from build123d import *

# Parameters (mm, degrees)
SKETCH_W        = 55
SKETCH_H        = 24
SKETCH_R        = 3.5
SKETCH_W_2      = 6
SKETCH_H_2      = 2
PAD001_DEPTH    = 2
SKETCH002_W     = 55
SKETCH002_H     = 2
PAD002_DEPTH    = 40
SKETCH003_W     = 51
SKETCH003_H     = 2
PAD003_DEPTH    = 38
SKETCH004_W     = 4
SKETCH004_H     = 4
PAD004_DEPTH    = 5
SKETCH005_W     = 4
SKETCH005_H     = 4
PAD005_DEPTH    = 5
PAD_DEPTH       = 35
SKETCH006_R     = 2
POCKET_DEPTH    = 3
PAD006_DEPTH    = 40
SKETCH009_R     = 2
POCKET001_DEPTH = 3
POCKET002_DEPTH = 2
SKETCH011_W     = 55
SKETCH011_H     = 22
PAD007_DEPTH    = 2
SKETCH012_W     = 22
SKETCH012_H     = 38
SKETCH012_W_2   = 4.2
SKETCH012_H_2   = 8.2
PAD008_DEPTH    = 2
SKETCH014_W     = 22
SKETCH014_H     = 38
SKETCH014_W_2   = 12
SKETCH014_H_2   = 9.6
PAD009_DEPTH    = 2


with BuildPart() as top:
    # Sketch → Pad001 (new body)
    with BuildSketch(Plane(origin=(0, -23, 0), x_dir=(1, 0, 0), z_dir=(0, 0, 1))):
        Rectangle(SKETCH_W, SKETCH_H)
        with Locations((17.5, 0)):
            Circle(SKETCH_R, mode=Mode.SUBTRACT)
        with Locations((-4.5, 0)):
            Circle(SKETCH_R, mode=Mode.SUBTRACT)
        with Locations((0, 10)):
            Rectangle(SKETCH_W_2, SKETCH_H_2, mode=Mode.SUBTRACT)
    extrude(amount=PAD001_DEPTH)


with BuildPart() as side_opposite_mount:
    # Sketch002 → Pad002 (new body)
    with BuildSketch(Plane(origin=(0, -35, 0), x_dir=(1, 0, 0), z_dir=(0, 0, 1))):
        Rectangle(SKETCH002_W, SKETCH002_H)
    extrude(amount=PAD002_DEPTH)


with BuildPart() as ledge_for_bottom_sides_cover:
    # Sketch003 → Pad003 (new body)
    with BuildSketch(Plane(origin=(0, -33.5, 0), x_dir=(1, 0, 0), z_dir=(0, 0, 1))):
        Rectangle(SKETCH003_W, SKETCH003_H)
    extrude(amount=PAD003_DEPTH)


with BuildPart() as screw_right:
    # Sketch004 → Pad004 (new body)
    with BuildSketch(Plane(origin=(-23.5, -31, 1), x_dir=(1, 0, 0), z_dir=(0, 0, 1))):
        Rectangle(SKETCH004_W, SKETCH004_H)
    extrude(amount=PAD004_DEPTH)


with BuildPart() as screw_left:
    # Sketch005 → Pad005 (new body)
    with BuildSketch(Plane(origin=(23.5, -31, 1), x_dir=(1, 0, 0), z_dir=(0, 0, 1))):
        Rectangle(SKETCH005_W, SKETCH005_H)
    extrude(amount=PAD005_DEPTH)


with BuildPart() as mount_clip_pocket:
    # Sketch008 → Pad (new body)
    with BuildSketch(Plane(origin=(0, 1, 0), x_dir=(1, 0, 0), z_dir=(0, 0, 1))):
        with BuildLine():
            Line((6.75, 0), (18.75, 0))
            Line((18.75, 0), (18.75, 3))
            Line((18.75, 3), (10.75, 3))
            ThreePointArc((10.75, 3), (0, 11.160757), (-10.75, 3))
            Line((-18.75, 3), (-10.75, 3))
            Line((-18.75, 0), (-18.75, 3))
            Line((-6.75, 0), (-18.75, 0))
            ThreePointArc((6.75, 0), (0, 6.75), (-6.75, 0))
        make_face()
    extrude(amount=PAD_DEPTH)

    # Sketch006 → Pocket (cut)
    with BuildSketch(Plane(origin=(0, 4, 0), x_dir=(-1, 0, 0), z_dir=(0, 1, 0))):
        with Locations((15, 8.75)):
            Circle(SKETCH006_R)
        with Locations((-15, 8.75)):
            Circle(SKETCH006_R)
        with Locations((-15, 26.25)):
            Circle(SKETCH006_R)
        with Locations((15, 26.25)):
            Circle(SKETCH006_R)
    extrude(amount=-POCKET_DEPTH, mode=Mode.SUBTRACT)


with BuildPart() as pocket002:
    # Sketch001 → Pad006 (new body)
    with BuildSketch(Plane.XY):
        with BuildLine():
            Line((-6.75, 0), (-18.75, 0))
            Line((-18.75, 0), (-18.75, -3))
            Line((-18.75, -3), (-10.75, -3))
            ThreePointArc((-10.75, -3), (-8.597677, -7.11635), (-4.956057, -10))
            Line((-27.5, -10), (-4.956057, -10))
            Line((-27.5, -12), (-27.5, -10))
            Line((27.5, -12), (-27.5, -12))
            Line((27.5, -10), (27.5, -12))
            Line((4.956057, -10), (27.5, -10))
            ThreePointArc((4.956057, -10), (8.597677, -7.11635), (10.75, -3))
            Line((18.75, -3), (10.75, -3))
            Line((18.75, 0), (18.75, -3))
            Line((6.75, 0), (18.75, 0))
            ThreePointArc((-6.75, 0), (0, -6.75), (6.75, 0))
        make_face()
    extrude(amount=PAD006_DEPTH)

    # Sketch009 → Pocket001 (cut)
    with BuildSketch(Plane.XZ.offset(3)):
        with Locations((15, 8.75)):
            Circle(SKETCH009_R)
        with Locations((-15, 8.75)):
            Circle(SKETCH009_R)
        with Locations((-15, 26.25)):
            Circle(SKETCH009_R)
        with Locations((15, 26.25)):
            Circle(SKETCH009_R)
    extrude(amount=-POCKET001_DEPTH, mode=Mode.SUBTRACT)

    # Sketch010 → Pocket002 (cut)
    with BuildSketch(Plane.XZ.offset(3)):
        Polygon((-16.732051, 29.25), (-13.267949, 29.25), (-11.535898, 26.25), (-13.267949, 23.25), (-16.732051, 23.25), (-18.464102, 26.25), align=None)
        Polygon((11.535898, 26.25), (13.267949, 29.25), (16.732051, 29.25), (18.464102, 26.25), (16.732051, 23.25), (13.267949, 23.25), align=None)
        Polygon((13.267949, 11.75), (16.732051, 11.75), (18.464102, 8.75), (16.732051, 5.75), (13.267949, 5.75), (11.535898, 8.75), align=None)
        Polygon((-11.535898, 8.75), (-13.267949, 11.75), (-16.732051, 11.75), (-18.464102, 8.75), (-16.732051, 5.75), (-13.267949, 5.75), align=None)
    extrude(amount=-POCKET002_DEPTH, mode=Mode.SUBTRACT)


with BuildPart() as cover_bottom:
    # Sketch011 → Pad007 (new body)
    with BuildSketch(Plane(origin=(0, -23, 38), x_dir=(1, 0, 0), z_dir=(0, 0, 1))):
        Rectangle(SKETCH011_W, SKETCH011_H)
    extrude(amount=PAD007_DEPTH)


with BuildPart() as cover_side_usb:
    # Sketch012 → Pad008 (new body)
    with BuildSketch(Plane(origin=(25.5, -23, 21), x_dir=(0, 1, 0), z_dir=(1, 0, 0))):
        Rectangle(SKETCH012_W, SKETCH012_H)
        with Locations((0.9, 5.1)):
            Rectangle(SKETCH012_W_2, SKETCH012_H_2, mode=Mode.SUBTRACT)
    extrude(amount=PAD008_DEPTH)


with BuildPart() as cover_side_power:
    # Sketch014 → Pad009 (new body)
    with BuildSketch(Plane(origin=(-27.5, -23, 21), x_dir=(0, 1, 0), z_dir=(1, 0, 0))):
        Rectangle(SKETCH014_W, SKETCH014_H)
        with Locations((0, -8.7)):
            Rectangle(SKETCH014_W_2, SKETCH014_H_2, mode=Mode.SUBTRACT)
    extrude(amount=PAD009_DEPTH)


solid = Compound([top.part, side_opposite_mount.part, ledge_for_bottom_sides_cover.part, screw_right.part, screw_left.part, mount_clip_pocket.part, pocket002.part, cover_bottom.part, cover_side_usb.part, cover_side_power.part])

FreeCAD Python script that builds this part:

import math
import FreeCAD as App
import Part
import Sketcher

V = App.Vector
Q = App.Units.Quantity

doc = App.newDocument("Part")
body = doc.addObject("PartDesign::Body", "Body")

# Sketch on XY plane
sketch1 = body.newObject("Sketcher::SketchObject", "Sketch")
sketch1.AttachmentSupport = (doc.getObject("XY_Plane"), [""])
sketch1.MapMode = "FlatFace"
sketch1.addGeometry(Part.LineSegment(V(-27.5, -11, 0), V(-27.5, -35, 0)), False)
sketch1.addGeometry(Part.LineSegment(V(-27.5, -35, 0), V(27.5, -35, 0)), False)
sketch1.addGeometry(Part.LineSegment(V(27.5, -35, 0), V(27.5, -11, 0)), False)
sketch1.addGeometry(Part.LineSegment(V(27.5, -11, 0), V(-27.5, -11, 0)), False)
sketch1.addGeometry(Part.Circle(V(-4.5, -23, 0), V(0, 0, 1), 3.5), False)
sketch1.addGeometry(Part.Circle(V(17.5, -23, 0), V(0, 0, 1), 3.5), False)
sketch1.addGeometry(Part.LineSegment(V(3, -14, 0), V(-3, -14, 0)), False)
sketch1.addGeometry(Part.LineSegment(V(-3, -14, 0), V(-3, -12, 0)), False)
sketch1.addGeometry(Part.LineSegment(V(-3, -12, 0), V(3, -12, 0)), False)
sketch1.addGeometry(Part.LineSegment(V(3, -12, 0), V(3, -14, 0)), False)
sketch1.addConstraint(Sketcher.Constraint("Coincident", 0, 2, 1, 1))
sketch1.addConstraint(Sketcher.Constraint("Coincident", 1, 2, 2, 1))
sketch1.addConstraint(Sketcher.Constraint("Coincident", 2, 2, 3, 1))
sketch1.addConstraint(Sketcher.Constraint("Coincident", 3, 2, 0, 1))
sketch1.addConstraint(Sketcher.Constraint("Coincident", 6, 2, 7, 1))
sketch1.addConstraint(Sketcher.Constraint("Coincident", 7, 2, 8, 1))
sketch1.addConstraint(Sketcher.Constraint("Coincident", 8, 2, 9, 1))
sketch1.addConstraint(Sketcher.Constraint("Coincident", 9, 2, 6, 1))
sketch1.addConstraint(Sketcher.Constraint("Vertical", 0))
sketch1.addConstraint(Sketcher.Constraint("Horizontal", 1))
sketch1.addConstraint(Sketcher.Constraint("Vertical", 2))
sketch1.addConstraint(Sketcher.Constraint("Horizontal", 3))
sketch1.addConstraint(Sketcher.Constraint("Horizontal", 6))
sketch1.addConstraint(Sketcher.Constraint("Vertical", 7))
sketch1.addConstraint(Sketcher.Constraint("Horizontal", 8))
sketch1.addConstraint(Sketcher.Constraint("Vertical", 9))
sketch1.addConstraint(Sketcher.Constraint("Equal", 4, 5))
sketch1.addConstraint(Sketcher.Constraint("Horizontal", 4, 3, 5, 3))
sketch1.addConstraint(Sketcher.Constraint("Diameter", 4, 7.0))
sketch1.addConstraint(Sketcher.Constraint("DistanceX", 1, 1, 1, 2, 55.0))
sketch1.addConstraint(Sketcher.Constraint("DistanceX", 6, 2, 6, 1, 6.0))
sketch1.addConstraint(Sketcher.Constraint("DistanceY", 0, 2, 0, 1, 24.0))
sketch1.addConstraint(Sketcher.Constraint("DistanceY", 7, 1, 7, 2, 2.0))
sketch1.addConstraint(Sketcher.Constraint("DistanceY", 4, 3, -1, 1, 23.0))
sketch1.addConstraint(Sketcher.Constraint("DistanceY", 0, 2, -1, 1, 35.0))
sketch1.addConstraint(Sketcher.Constraint("DistanceX", 6, 2, -1, 1, 3.0))
sketch1.addConstraint(Sketcher.Constraint("DistanceY", 6, 2, -1, 1, 14.0))
sketch1.addConstraint(Sketcher.Constraint("DistanceX", 4, 3, 5, 3, 22.0))
sketch1.addConstraint(Sketcher.Constraint("DistanceX", 0, 2, 4, 3, 23.0))
sketch1.addConstraint(Sketcher.Constraint("DistanceX", 4, 3, -1, 1, 4.5))
pad1 = body.newObject("PartDesign::Pad", "Pad")
pad1.Profile = sketch1
pad1.Length = 2
body2 = doc.addObject("PartDesign::Body", "Body001")

# Sketch on XY plane
sketch2 = body2.newObject("Sketcher::SketchObject", "Sketch001")
sketch2.AttachmentSupport = (doc.getObject("XY_Plane001"), [""])
sketch2.MapMode = "FlatFace"
sketch2.addGeometry(Part.LineSegment(V(-27.5, -34, 0), V(-27.5, -36, 0)), False)
sketch2.addGeometry(Part.LineSegment(V(-27.5, -36, 0), V(27.5, -36, 0)), False)
sketch2.addGeometry(Part.LineSegment(V(27.5, -36, 0), V(27.5, -34, 0)), False)
sketch2.addGeometry(Part.LineSegment(V(27.5, -34, 0), V(-27.5, -34, 0)), False)
sketch2.addConstraint(Sketcher.Constraint("Coincident", 0, 2, 1, 1))
sketch2.addConstraint(Sketcher.Constraint("Coincident", 1, 2, 2, 1))
sketch2.addConstraint(Sketcher.Constraint("Coincident", 2, 2, 3, 1))
sketch2.addConstraint(Sketcher.Constraint("Coincident", 3, 2, 0, 1))
sketch2.addConstraint(Sketcher.Constraint("Vertical", 0))
sketch2.addConstraint(Sketcher.Constraint("Horizontal", 1))
sketch2.addConstraint(Sketcher.Constraint("Vertical", 2))
sketch2.addConstraint(Sketcher.Constraint("Horizontal", 3))
sketch2.addConstraint(Sketcher.Constraint("DistanceX", 1, 1, 1, 2, 55.0))
sketch2.addConstraint(Sketcher.Constraint("DistanceY", 0, 2, 0, 1, 2.0))
sketch2.addConstraint(Sketcher.Constraint("DistanceY", 0, 2, -1, 1, 36.0))
sketch2.addConstraint(Sketcher.Constraint("DistanceX", 0, 2, -1, 1, 27.5))
pad2 = body2.newObject("PartDesign::Pad", "Pad001")
pad2.Profile = sketch2
pad2.Length = 40
body3 = doc.addObject("PartDesign::Body", "Body002")

# Sketch on XY plane
sketch3 = body3.newObject("Sketcher::SketchObject", "Sketch002")
sketch3.AttachmentSupport = (doc.getObject("XY_Plane002"), [""])
sketch3.MapMode = "FlatFace"
sketch3.addGeometry(Part.LineSegment(V(-25.5, -32.5, 0), V(-25.5, -34.5, 0)), False)
sketch3.addGeometry(Part.LineSegment(V(-25.5, -34.5, 0), V(25.5, -34.5, 0)), False)
sketch3.addGeometry(Part.LineSegment(V(25.5, -34.5, 0), V(25.5, -32.5, 0)), False)
sketch3.addGeometry(Part.LineSegment(V(25.5, -32.5, 0), V(-25.5, -32.5, 0)), False)
sketch3.addConstraint(Sketcher.Constraint("Coincident", 0, 2, 1, 1))
sketch3.addConstraint(Sketcher.Constraint("Coincident", 1, 2, 2, 1))
sketch3.addConstraint(Sketcher.Constraint("Coincident", 2, 2, 3, 1))
sketch3.addConstraint(Sketcher.Constraint("Coincident", 3, 2, 0, 1))
sketch3.addConstraint(Sketcher.Constraint("Vertical", 0))
sketch3.addConstraint(Sketcher.Constraint("Horizontal", 1))
sketch3.addConstraint(Sketcher.Constraint("Vertical", 2))
sketch3.addConstraint(Sketcher.Constraint("Horizontal", 3))
sketch3.addConstraint(Sketcher.Constraint("DistanceX", 1, 1, 1, 2, 51.0))
sketch3.addConstraint(Sketcher.Constraint("DistanceY", 0, 2, 0, 1, 2.0))
sketch3.addConstraint(Sketcher.Constraint("DistanceX", 0, 2, -1, 1, 25.5))
sketch3.addConstraint(Sketcher.Constraint("DistanceY", 0, 2, -1, 1, 34.5))
pad3 = body3.newObject("PartDesign::Pad", "Pad002")
pad3.Profile = sketch3
pad3.Length = 38
body4 = doc.addObject("PartDesign::Body", "Body003")

# Sketch on XY plane
sketch4 = body4.newObject("Sketcher::SketchObject", "Sketch003")
sketch4.AttachmentSupport = (doc.getObject("XY_Plane003"), [""])
sketch4.MapMode = "FlatFace"
sketch4.AttachmentOffset = App.Placement(V(0, 0, 1), App.Rotation())
sketch4.addGeometry(Part.LineSegment(V(-25.5, -29, 0), V(-25.5, -33, 0)), False)
sketch4.addGeometry(Part.LineSegment(V(-25.5, -33, 0), V(-21.5, -33, 0)), False)
sketch4.addGeometry(Part.LineSegment(V(-21.5, -33, 0), V(-21.5, -29, 0)), False)
sketch4.addGeometry(Part.LineSegment(V(-21.5, -29, 0), V(-25.5, -29, 0)), False)
sketch4.addConstraint(Sketcher.Constraint("Coincident", 0, 2, 1, 1))
sketch4.addConstraint(Sketcher.Constraint("Coincident", 1, 2, 2, 1))
sketch4.addConstraint(Sketcher.Constraint("Coincident", 2, 2, 3, 1))
sketch4.addConstraint(Sketcher.Constraint("Coincident", 3, 2, 0, 1))
sketch4.addConstraint(Sketcher.Constraint("Vertical", 0))
sketch4.addConstraint(Sketcher.Constraint("Horizontal", 1))
sketch4.addConstraint(Sketcher.Constraint("Vertical", 2))
sketch4.addConstraint(Sketcher.Constraint("Horizontal", 3))
sketch4.addConstraint(Sketcher.Constraint("Equal", 3, 0))
sketch4.addConstraint(Sketcher.Constraint("DistanceX", 1, 1, 1, 2, 4.0))
sketch4.addConstraint(Sketcher.Constraint("DistanceY", 0, 2, -1, 1, 33.0))
sketch4.addConstraint(Sketcher.Constraint("DistanceX", 0, 2, -1, 1, 25.5))
pad4 = body4.newObject("PartDesign::Pad", "Pad003")
pad4.Profile = sketch4
pad4.Length = 5
body5 = doc.addObject("PartDesign::Body", "Body004")

# Sketch on XY plane
sketch5 = body5.newObject("Sketcher::SketchObject", "Sketch004")
sketch5.AttachmentSupport = (doc.getObject("XY_Plane004"), [""])
sketch5.MapMode = "FlatFace"
sketch5.AttachmentOffset = App.Placement(V(0, 0, 1), App.Rotation())
sketch5.addGeometry(Part.LineSegment(V(21.5, -29, 0), V(21.5, -33, 0)), False)
sketch5.addGeometry(Part.LineSegment(V(21.5, -33, 0), V(25.5, -33, 0)), False)
sketch5.addGeometry(Part.LineSegment(V(25.5, -33, 0), V(25.5, -29, 0)), False)
sketch5.addGeometry(Part.LineSegment(V(25.5, -29, 0), V(21.5, -29, 0)), False)
sketch5.addConstraint(Sketcher.Constraint("Coincident", 0, 2, 1, 1))
sketch5.addConstraint(Sketcher.Constraint("Coincident", 1, 2, 2, 1))
sketch5.addConstraint(Sketcher.Constraint("Coincident", 2, 2, 3, 1))
sketch5.addConstraint(Sketcher.Constraint("Coincident", 3, 2, 0, 1))
sketch5.addConstraint(Sketcher.Constraint("Vertical", 0))
sketch5.addConstraint(Sketcher.Constraint("Horizontal", 1))
sketch5.addConstraint(Sketcher.Constraint("Vertical", 2))
sketch5.addConstraint(Sketcher.Constraint("Horizontal", 3))
sketch5.addConstraint(Sketcher.Constraint("Equal", 3, 0))
sketch5.addConstraint(Sketcher.Constraint("DistanceX", 1, 1, 1, 2, 4.0))
sketch5.addConstraint(Sketcher.Constraint("DistanceY", 0, 2, -1, 1, 33.0))
sketch5.addConstraint(Sketcher.Constraint("DistanceX", -1, 1, 0, 2, 21.5))
pad5 = body5.newObject("PartDesign::Pad", "Pad004")
pad5.Profile = sketch5
pad5.Length = 5
body6 = doc.addObject("PartDesign::Body", "Body005")

# Sketch on XY plane
sketch6 = body6.newObject("Sketcher::SketchObject", "Sketch005")
sketch6.AttachmentSupport = (doc.getObject("XY_Plane005"), [""])
sketch6.MapMode = "FlatFace"
sketch6.addGeometry(Part.LineSegment(V(6.8, 1, 0), V(18.8, 1, 0)), False)
sketch6.addGeometry(Part.LineSegment(V(18.8, 1, 0), V(18.8, 4, 0)), False)
sketch6.addGeometry(Part.LineSegment(V(18.8, 4, 0), V(10.8, 4, 0)), False)
sketch6.addGeometry(Part.ArcOfCircle(Part.Circle(V(0, 1, 0), V(0, 0, 1), 11.2), math.radians(16), math.radians(164)), False)
sketch6.addGeometry(Part.LineSegment(V(-10.8, 4, 0), V(-18.8, 4, 0)), False)
sketch6.addGeometry(Part.LineSegment(V(-18.8, 4, 0), V(-18.8, 1, 0)), False)
sketch6.addGeometry(Part.LineSegment(V(-18.8, 1, 0), V(-6.8, 1, 0)), False)
sketch6.addGeometry(Part.ArcOfCircle(Part.Circle(V(0, 1, 0), V(0, 0, 1), 6.8), math.radians(0), math.radians(180)), False)
sketch6.addConstraint(Sketcher.Constraint("Coincident", 0, 2, 1, 1))
sketch6.addConstraint(Sketcher.Constraint("Coincident", 1, 2, 2, 1))
sketch6.addConstraint(Sketcher.Constraint("Coincident", 2, 2, 3, 1))
sketch6.addConstraint(Sketcher.Constraint("Coincident", 3, 2, 4, 1))
sketch6.addConstraint(Sketcher.Constraint("Coincident", 4, 2, 5, 1))
sketch6.addConstraint(Sketcher.Constraint("Coincident", 5, 2, 6, 1))
sketch6.addConstraint(Sketcher.Constraint("Coincident", 6, 2, 7, 2))
sketch6.addConstraint(Sketcher.Constraint("Coincident", 7, 1, 0, 1))
sketch6.addConstraint(Sketcher.Constraint("Horizontal", 0))
sketch6.addConstraint(Sketcher.Constraint("Vertical", 1))
sketch6.addConstraint(Sketcher.Constraint("Horizontal", 2))
sketch6.addConstraint(Sketcher.Constraint("Horizontal", 4))
sketch6.addConstraint(Sketcher.Constraint("Vertical", 5))
sketch6.addConstraint(Sketcher.Constraint("Horizontal", 6))
sketch6.addConstraint(Sketcher.Constraint("Coincident", 7, 3, 3, 3))
sketch6.addConstraint(Sketcher.Constraint("Symmetric", 2, 2, 3, 2, -2))
sketch6.addConstraint(Sketcher.Constraint("Symmetric", 0, 2, 5, 2, -2))
sketch6.addConstraint(Sketcher.Constraint("Horizontal", 7, 3, 0, 2))
sketch6.addConstraint(Sketcher.Constraint("DistanceX", 0, 1, 0, 2, 12.0))
sketch6.addConstraint(Sketcher.Constraint("DistanceX", 2, 2, 2, 1, 8.0))
sketch6.addConstraint(Sketcher.Constraint("DistanceY", 1, 1, 1, 2, 3.0))
sketch6.addConstraint(Sketcher.Constraint("Radius", 7, 6.75))
sketch6.addConstraint(Sketcher.Constraint("DistanceY", -1, 1, 3, 3, 1.0))
pad6 = body6.newObject("PartDesign::Pad", "Pad005")
pad6.Profile = sketch6
pad6.Length = 35

# Sketch on XZ plane
sketch7 = body6.newObject("Sketcher::SketchObject", "Sketch006")
sketch7.AttachmentSupport = (doc.getObject("XZ_Plane005"), [""])
sketch7.MapMode = "FlatFace"
sketch7.AttachmentOffset = App.Placement(V(0, 0, -4), App.Rotation())
sketch7.addGeometry(Part.Circle(V(-15, 8.8, 0), V(0, 0, 1), 2), False)
sketch7.addGeometry(Part.Circle(V(15, 8.8, 0), V(0, 0, 1), 2), False)
sketch7.addGeometry(Part.Circle(V(15, 26.2, 0), V(0, 0, 1), 2), False)
sketch7.addGeometry(Part.Circle(V(-15, 26.2, 0), V(0, 0, 1), 2), False)
sketch7.addConstraint(Sketcher.Constraint("Equal", 0, 1))
sketch7.addConstraint(Sketcher.Constraint("Equal", 1, 2))
sketch7.addConstraint(Sketcher.Constraint("Equal", 2, 3))
sketch7.addConstraint(Sketcher.Constraint("Symmetric", 0, 3, 1, 3, -2))
sketch7.addConstraint(Sketcher.Constraint("Symmetric", 2, 3, 3, 3, -2))
sketch7.addConstraint(Sketcher.Constraint("Vertical", 1, 3, 2, 3))
sketch7.addConstraint(Sketcher.Constraint("Diameter", 0, 4.0))
sketch7.addConstraint(Sketcher.Constraint("DistanceX", 0, 3, -1, 1, 15.0))
sketch7.addConstraint(Sketcher.Constraint("DistanceY", 1, 3, 2, 3, 17.5))
sketch7.addConstraint(Sketcher.Constraint("DistanceY", -1, 1, 0, 3, 8.75))
pocket1 = body6.newObject("PartDesign::Pocket", "Pocket")
pocket1.Profile = sketch7
pocket1.Length = 3
pocket1.Reversed = True
body7 = doc.addObject("PartDesign::Body", "Body006")

# Sketch on XY plane
sketch8 = body7.newObject("Sketcher::SketchObject", "Sketch007")
sketch8.AttachmentSupport = (doc.getObject("XY_Plane006"), [""])
sketch8.MapMode = "FlatFace"
sketch8.addGeometry(Part.LineSegment(V(-6.8, 0, 0), V(-18.8, 0, 0)), False)
sketch8.addGeometry(Part.LineSegment(V(-18.8, 0, 0), V(-18.8, -3, 0)), False)
sketch8.addGeometry(Part.LineSegment(V(-18.8, -3, 0), V(-10.8, -3, 0)), False)
sketch8.addGeometry(Part.ArcOfCircle(Part.Circle(V(0, 0, 0), V(0, 0, 1), 11.2), math.radians(-164), math.radians(-116)), False)
sketch8.addGeometry(Part.LineSegment(V(-5, -10, 0), V(-27.5, -10, 0)), False)
sketch8.addGeometry(Part.LineSegment(V(-27.5, -10, 0), V(-27.5, -12, 0)), False)
sketch8.addGeometry(Part.LineSegment(V(-27.5, -12, 0), V(27.5, -12, 0)), False)
sketch8.addGeometry(Part.LineSegment(V(27.5, -12, 0), V(27.5, -10, 0)), False)
sketch8.addGeometry(Part.LineSegment(V(27.5, -10, 0), V(5, -10, 0)), False)
sketch8.addGeometry(Part.ArcOfCircle(Part.Circle(V(0, 0, 0), V(0, 0, 1), 11.2), math.radians(-64), math.radians(-16)), False)
sketch8.addGeometry(Part.LineSegment(V(10.8, -3, 0), V(18.8, -3, 0)), False)
sketch8.addGeometry(Part.LineSegment(V(18.8, -3, 0), V(18.8, 0, 0)), False)
sketch8.addGeometry(Part.LineSegment(V(18.8, 0, 0), V(6.8, 0, 0)), False)
sketch8.addGeometry(Part.ArcOfCircle(Part.Circle(V(0, 0, 0), V(0, 0, 1), 6.8), math.radians(180), math.radians(360)), False)
sketch8.addConstraint(Sketcher.Constraint("Coincident", 0, 2, 1, 1))
sketch8.addConstraint(Sketcher.Constraint("Coincident", 1, 2, 2, 1))
sketch8.addConstraint(Sketcher.Constraint("Coincident", 2, 2, 3, 1))
sketch8.addConstraint(Sketcher.Constraint("Coincident", 3, 2, 4, 1))
sketch8.addConstraint(Sketcher.Constraint("Coincident", 4, 2, 5, 1))
sketch8.addConstraint(Sketcher.Constraint("Coincident", 5, 2, 6, 1))
sketch8.addConstraint(Sketcher.Constraint("Coincident", 6, 2, 7, 1))
sketch8.addConstraint(Sketcher.Constraint("Coincident", 7, 2, 8, 1))
sketch8.addConstraint(Sketcher.Constraint("Coincident", 8, 2, 9, 1))
sketch8.addConstraint(Sketcher.Constraint("Coincident", 9, 2, 10, 1))
sketch8.addConstraint(Sketcher.Constraint("Coincident", 10, 2, 11, 1))
sketch8.addConstraint(Sketcher.Constraint("Coincident", 11, 2, 12, 1))
sketch8.addConstraint(Sketcher.Constraint("Coincident", 12, 2, 13, 2))
sketch8.addConstraint(Sketcher.Constraint("Coincident", 13, 1, 0, 1))
sketch8.addConstraint(Sketcher.Constraint("Horizontal", 0))
sketch8.addConstraint(Sketcher.Constraint("Vertical", 1))
sketch8.addConstraint(Sketcher.Constraint("Horizontal", 2))
sketch8.addConstraint(Sketcher.Constraint("Horizontal", 4))
sketch8.addConstraint(Sketcher.Constraint("Vertical", 5))
sketch8.addConstraint(Sketcher.Constraint("Horizontal", 6))
sketch8.addConstraint(Sketcher.Constraint("Vertical", 7))
sketch8.addConstraint(Sketcher.Constraint("Horizontal", 8))
sketch8.addConstraint(Sketcher.Constraint("Horizontal", 10))
sketch8.addConstraint(Sketcher.Constraint("Vertical", 11))
sketch8.addConstraint(Sketcher.Constraint("Horizontal", 12))
sketch8.addConstraint(Sketcher.Constraint("Coincident", 3, 3, -1, 1))
sketch8.addConstraint(Sketcher.Constraint("Coincident", 9, 3, -1, 1))
sketch8.addConstraint(Sketcher.Constraint("Coincident", 13, 3, -1, 1))
sketch8.addConstraint(Sketcher.Constraint("Equal", 3, 9))
sketch8.addConstraint(Sketcher.Constraint("Symmetric", 0, 2, 11, 2, -1, 1))
sketch8.addConstraint(Sketcher.Constraint("Symmetric", 4, 2, 7, 2, -2))
sketch8.addConstraint(Sketcher.Constraint("PointOnObject", 0, 2, -1))
sketch8.addConstraint(Sketcher.Constraint("Horizontal", 2, 2, 9, 2))
sketch8.addConstraint(Sketcher.Constraint("DistanceX", 0, 2, 0, 1, 12.0))
sketch8.addConstraint(Sketcher.Constraint("DistanceX", 2, 1, 2, 2, 8.0))
sketch8.addConstraint(Sketcher.Constraint("DistanceX", 6, 1, 6, 2, 55.0))
sketch8.addConstraint(Sketcher.Constraint("DistanceY", 1, 2, 1, 1, 3.0))
sketch8.addConstraint(Sketcher.Constraint("DistanceY", 5, 2, 5, 1, 2.0))
sketch8.addConstraint(Sketcher.Constraint("Radius", 13, 6.75))
sketch8.addConstraint(Sketcher.Constraint("DistanceY", 3, 2, -1, 1, 10.0))
pad7 = body7.newObject("PartDesign::Pad", "Pad006")
pad7.Profile = sketch8
pad7.Length = 40

# Sketch on XZ plane
sketch9 = body7.newObject("Sketcher::SketchObject", "Sketch008")
sketch9.AttachmentSupport = (doc.getObject("XZ_Plane006"), [""])
sketch9.MapMode = "FlatFace"
sketch9.AttachmentOffset = App.Placement(V(0, 0, 3), App.Rotation())
sketch9.addGeometry(Part.Circle(V(15, 8.8, 0), V(0, 0, 1), 2), False)
sketch9.addGeometry(Part.Circle(V(-15, 8.8, 0), V(0, 0, 1), 2), False)
sketch9.addGeometry(Part.Circle(V(-15, 26.2, 0), V(0, 0, 1), 2), False)
sketch9.addGeometry(Part.Circle(V(15, 26.2, 0), V(0, 0, 1), 2), False)
sketch9.addConstraint(Sketcher.Constraint("Equal", 0, 1))
sketch9.addConstraint(Sketcher.Constraint("Equal", 1, 2))
sketch9.addConstraint(Sketcher.Constraint("Equal", 2, 3))
sketch9.addConstraint(Sketcher.Constraint("Symmetric", 0, 3, 1, 3, -2))
sketch9.addConstraint(Sketcher.Constraint("Symmetric", 2, 3, 3, 3, -2))
sketch9.addConstraint(Sketcher.Constraint("Vertical", 1, 3, 2, 3))
sketch9.addConstraint(Sketcher.Constraint("Diameter", 0, 4.0))
sketch9.addConstraint(Sketcher.Constraint("DistanceX", -1, 1, 0, 3, 15.0))
sketch9.addConstraint(Sketcher.Constraint("DistanceY", 1, 3, 2, 3, 17.5))
sketch9.addConstraint(Sketcher.Constraint("DistanceY", -1, 1, 0, 3, 8.75))
pocket2 = body7.newObject("PartDesign::Pocket", "Pocket001")
pocket2.Profile = sketch9
pocket2.Length = 3

# Sketch on XZ plane
sketch10 = body7.newObject("Sketcher::SketchObject", "Sketch009")
sketch10.AttachmentSupport = (doc.getObject("XZ_Plane006"), [""])
sketch10.MapMode = "FlatFace"
sketch10.AttachmentOffset = App.Placement(V(0, 0, 3), App.Rotation())
sketch10.addGeometry(Part.LineSegment(V(-13.3, 29.2, 0), V(-16.7, 29.2, 0)), False)
sketch10.addGeometry(Part.LineSegment(V(-16.7, 29.2, 0), V(-18.5, 26.2, 0)), False)
sketch10.addGeometry(Part.LineSegment(V(-18.5, 26.2, 0), V(-16.7, 23.2, 0)), False)
sketch10.addGeometry(Part.LineSegment(V(-16.7, 23.2, 0), V(-13.3, 23.2, 0)), False)
sketch10.addGeometry(Part.LineSegment(V(-13.3, 23.2, 0), V(-11.5, 26.2, 0)), False)
sketch10.addGeometry(Part.LineSegment(V(-11.5, 26.2, 0), V(-13.3, 29.2, 0)), False)
sketch10.addGeometry(Part.LineSegment(V(13.3, 29.2, 0), V(11.5, 26.2, 0)), False)
sketch10.addGeometry(Part.LineSegment(V(11.5, 26.2, 0), V(13.3, 23.2, 0)), False)
sketch10.addGeometry(Part.LineSegment(V(13.3, 23.2, 0), V(16.7, 23.2, 0)), False)
sketch10.addGeometry(Part.LineSegment(V(16.7, 23.2, 0), V(18.5, 26.2, 0)), False)
sketch10.addGeometry(Part.LineSegment(V(18.5, 26.2, 0), V(16.7, 29.2, 0)), False)
sketch10.addGeometry(Part.LineSegment(V(16.7, 29.2, 0), V(13.3, 29.2, 0)), False)
sketch10.addGeometry(Part.LineSegment(V(16.7, 11.8, 0), V(13.3, 11.8, 0)), False)
sketch10.addGeometry(Part.LineSegment(V(13.3, 11.8, 0), V(11.5, 8.8, 0)), False)
sketch10.addGeometry(Part.LineSegment(V(11.5, 8.8, 0), V(13.3, 5.8, 0)), False)
sketch10.addGeometry(Part.LineSegment(V(13.3, 5.8, 0), V(16.7, 5.8, 0)), False)
sketch10.addGeometry(Part.LineSegment(V(16.7, 5.8, 0), V(18.5, 8.8, 0)), False)
sketch10.addGeometry(Part.LineSegment(V(18.5, 8.8, 0), V(16.7, 11.8, 0)), False)
sketch10.addGeometry(Part.LineSegment(V(-11.5, 8.8, 0), V(-13.3, 11.8, 0)), False)
sketch10.addGeometry(Part.LineSegment(V(-13.3, 11.8, 0), V(-16.7, 11.8, 0)), False)
sketch10.addGeometry(Part.LineSegment(V(-16.7, 11.8, 0), V(-18.5, 8.8, 0)), False)
sketch10.addGeometry(Part.LineSegment(V(-18.5, 8.8, 0), V(-16.7, 5.8, 0)), False)
sketch10.addGeometry(Part.LineSegment(V(-16.7, 5.8, 0), V(-13.3, 5.8, 0)), False)
sketch10.addGeometry(Part.LineSegment(V(-13.3, 5.8, 0), V(-11.5, 8.8, 0)), False)
sketch10.addConstraint(Sketcher.Constraint("Coincident", 0, 2, 1, 1))
sketch10.addConstraint(Sketcher.Constraint("Coincident", 1, 2, 2, 1))
sketch10.addConstraint(Sketcher.Constraint("Coincident", 2, 2, 3, 1))
sketch10.addConstraint(Sketcher.Constraint("Coincident", 3, 2, 4, 1))
sketch10.addConstraint(Sketcher.Constraint("Coincident", 4, 2, 5, 1))
sketch10.addConstraint(Sketcher.Constraint("Coincident", 5, 2, 0, 1))
sketch10.addConstraint(Sketcher.Constraint("Coincident", 6, 2, 7, 1))
sketch10.addConstraint(Sketcher.Constraint("Coincident", 7, 2, 8, 1))
sketch10.addConstraint(Sketcher.Constraint("Coincident", 8, 2, 9, 1))
sketch10.addConstraint(Sketcher.Constraint("Coincident", 9, 2, 10, 1))
sketch10.addConstraint(Sketcher.Constraint("Coincident", 10, 2, 11, 1))
sketch10.addConstraint(Sketcher.Constraint("Coincident", 11, 2, 6, 1))
sketch10.addConstraint(Sketcher.Constraint("Coincident", 12, 2, 13, 1))
sketch10.addConstraint(Sketcher.Constraint("Coincident", 13, 2, 14, 1))
sketch10.addConstraint(Sketcher.Constraint("Coincident", 14, 2, 15, 1))
sketch10.addConstraint(Sketcher.Constraint("Coincident", 15, 2, 16, 1))
sketch10.addConstraint(Sketcher.Constraint("Coincident", 16, 2, 17, 1))
sketch10.addConstraint(Sketcher.Constraint("Coincident", 17, 2, 12, 1))
sketch10.addConstraint(Sketcher.Constraint("Coincident", 18, 2, 19, 1))
sketch10.addConstraint(Sketcher.Constraint("Coincident", 19, 2, 20, 1))
sketch10.addConstraint(Sketcher.Constraint("Coincident", 20, 2, 21, 1))
sketch10.addConstraint(Sketcher.Constraint("Coincident", 21, 2, 22, 1))
sketch10.addConstraint(Sketcher.Constraint("Coincident", 22, 2, 23, 1))
sketch10.addConstraint(Sketcher.Constraint("Coincident", 23, 2, 18, 1))
sketch10.addConstraint(Sketcher.Constraint("Horizontal", 0))
sketch10.addConstraint(Sketcher.Constraint("Horizontal", 3))
sketch10.addConstraint(Sketcher.Constraint("Horizontal", 8))
sketch10.addConstraint(Sketcher.Constraint("Horizontal", 11))
sketch10.addConstraint(Sketcher.Constraint("Horizontal", 12))
sketch10.addConstraint(Sketcher.Constraint("Horizontal", 15))
sketch10.addConstraint(Sketcher.Constraint("Horizontal", 19))
sketch10.addConstraint(Sketcher.Constraint("Horizontal", 22))
sketch10.addConstraint(Sketcher.Constraint("Symmetric", 4, 2, 6, 2, -2))
sketch10.addConstraint(Sketcher.Constraint("Symmetric", 3, 2, 7, 2, -2))
sketch10.addConstraint(Sketcher.Constraint("Symmetric", 1, 2, 9, 2, -2))
sketch10.addConstraint(Sketcher.Constraint("Symmetric", 0, 2, 10, 2, -2))
sketch10.addConstraint(Sketcher.Constraint("Symmetric", 12, 2, 18, 2, -2))
sketch10.addConstraint(Sketcher.Constraint("Symmetric", 16, 2, 20, 2, -2))
sketch10.addConstraint(Sketcher.Constraint("Symmetric", 15, 2, 21, 2, -2))
sketch10.addConstraint(Sketcher.Constraint("Symmetric", 13, 2, 23, 2, -2))
sketch10.addConstraint(Sketcher.Constraint("Parallel", 1, 4))
sketch10.addConstraint(Sketcher.Constraint("Parallel", 2, 5))
sketch10.addConstraint(Sketcher.Constraint("Parallel", 4, 6))
sketch10.addConstraint(Sketcher.Constraint("Parallel", 5, 7))
sketch10.addConstraint(Sketcher.Constraint("Parallel", 6, 9))
sketch10.addConstraint(Sketcher.Constraint("Parallel", 9, 13))
sketch10.addConstraint(Sketcher.Constraint("Parallel", 10, 14))
sketch10.addConstraint(Sketcher.Constraint("Parallel", 13, 16))
sketch10.addConstraint(Sketcher.Constraint("Parallel", 14, 17))
sketch10.addConstraint(Sketcher.Constraint("Parallel", 16, 20))
sketch10.addConstraint(Sketcher.Constraint("Parallel", 20, 23))
sketch10.addConstraint(Sketcher.Constraint("Horizontal", 1, 2, 4, 2))
sketch10.addConstraint(Sketcher.Constraint("Horizontal", 13, 2, 16, 2))
sketch10.addConstraint(Sketcher.Constraint("Vertical", 0, 2, 2, 2))
sketch10.addConstraint(Sketcher.Constraint("Vertical", 11, 2, 12, 2))
sketch10.addConstraint(Sketcher.Constraint("Vertical", 6, 2, 13, 2))
sketch10.addConstraint(Sketcher.Constraint("Vertical", 12, 2, 14, 2))
sketch10.addConstraint(Sketcher.Constraint("Vertical", 10, 2, 15, 2))
sketch10.addConstraint(Sketcher.Constraint("Angle", 1, Q("-120.000003 deg")))
sketch10.addConstraint(Sketcher.Constraint("DistanceY", 1, 2, 0, 2, 3.0))
sketch10.addConstraint(Sketcher.Constraint("DistanceX", 2, 2, 7, 2, 30.0))
sketch10.addConstraint(Sketcher.Constraint("DistanceY", 12, 2, 7, 2, 11.5))
sketch10.addConstraint(Sketcher.Constraint("DistanceY", -1, 1, 0, 2, 29.25))
sketch10.addConstraint(Sketcher.Constraint("DistanceX", 0, 2, 0, 1, 3.464102))
pocket3 = body7.newObject("PartDesign::Pocket", "Pocket002")
pocket3.Profile = sketch10
pocket3.Length = 2
body8 = doc.addObject("PartDesign::Body", "Body007")

# Sketch on XY plane
sketch11 = body8.newObject("Sketcher::SketchObject", "Sketch010")
sketch11.AttachmentSupport = (doc.getObject("XY_Plane007"), [""])
sketch11.MapMode = "FlatFace"
sketch11.AttachmentOffset = App.Placement(V(0, 0, 38), App.Rotation())
sketch11.addGeometry(Part.LineSegment(V(-28, -12, 0), V(-28, -34, 0)), False)
sketch11.addGeometry(Part.LineSegment(V(-28, -34, 0), V(28, -34, 0)), False)
sketch11.addGeometry(Part.LineSegment(V(28, -34, 0), V(28, -12, 0)), False)
sketch11.addGeometry(Part.LineSegment(V(28, -12, 0), V(-28, -12, 0)), False)
sketch11.addConstraint(Sketcher.Constraint("Coincident", 0, 2, 1, 1))
sketch11.addConstraint(Sketcher.Constraint("Coincident", 1, 2, 2, 1))
sketch11.addConstraint(Sketcher.Constraint("Coincident", 2, 2, 3, 1))
sketch11.addConstraint(Sketcher.Constraint("Coincident", 3, 2, 0, 1))
sketch11.addConstraint(Sketcher.Constraint("Vertical", 0))
sketch11.addConstraint(Sketcher.Constraint("Horizontal", 1))
sketch11.addConstraint(Sketcher.Constraint("Vertical", 2))
sketch11.addConstraint(Sketcher.Constraint("Horizontal", 3))
sketch11.addConstraint(Sketcher.Constraint("DistanceX", 1, 1, 1, 2, 55.0))
sketch11.addConstraint(Sketcher.Constraint("DistanceY", 0, 2, 0, 1, 22.0))
sketch11.addConstraint(Sketcher.Constraint("DistanceY", 0, 2, -1, 1, 34.0))
sketch11.addConstraint(Sketcher.Constraint("DistanceX", 0, 2, -1, 1, 27.5))
pad8 = body8.newObject("PartDesign::Pad", "Pad007")
pad8.Profile = sketch11
pad8.Length = 2
body9 = doc.addObject("PartDesign::Body", "Body008")

# Sketch on YZ plane
sketch12 = body9.newObject("Sketcher::SketchObject", "Sketch011")
sketch12.AttachmentSupport = (doc.getObject("YZ_Plane008"), [""])
sketch12.MapMode = "FlatFace"
sketch12.AttachmentOffset = App.Placement(V(0, 0, 25.5), App.Rotation())
sketch12.addGeometry(Part.LineSegment(V(-34, 40, 0), V(-34, 2, 0)), False)
sketch12.addGeometry(Part.LineSegment(V(-34, 2, 0), V(-12, 2, 0)), False)
sketch12.addGeometry(Part.LineSegment(V(-12, 2, 0), V(-12, 40, 0)), False)
sketch12.addGeometry(Part.LineSegment(V(-12, 40, 0), V(-34, 40, 0)), False)
sketch12.addGeometry(Part.LineSegment(V(-20, 22, 0), V(-24.2, 22, 0)), False)
sketch12.addGeometry(Part.LineSegment(V(-24.2, 22, 0), V(-24.2, 30.2, 0)), False)
sketch12.addGeometry(Part.LineSegment(V(-24.2, 30.2, 0), V(-20, 30.2, 0)), False)
sketch12.addGeometry(Part.LineSegment(V(-20, 30.2, 0), V(-20, 22, 0)), False)
sketch12.addConstraint(Sketcher.Constraint("Coincident", 0, 2, 1, 1))
sketch12.addConstraint(Sketcher.Constraint("Coincident", 1, 2, 2, 1))
sketch12.addConstraint(Sketcher.Constraint("Coincident", 2, 2, 3, 1))
sketch12.addConstraint(Sketcher.Constraint("Coincident", 3, 2, 0, 1))
sketch12.addConstraint(Sketcher.Constraint("Coincident", 4, 2, 5, 1))
sketch12.addConstraint(Sketcher.Constraint("Coincident", 5, 2, 6, 1))
sketch12.addConstraint(Sketcher.Constraint("Coincident", 6, 2, 7, 1))
sketch12.addConstraint(Sketcher.Constraint("Coincident", 7, 2, 4, 1))
sketch12.addConstraint(Sketcher.Constraint("Vertical", 0))
sketch12.addConstraint(Sketcher.Constraint("Horizontal", 1))
sketch12.addConstraint(Sketcher.Constraint("Vertical", 2))
sketch12.addConstraint(Sketcher.Constraint("Horizontal", 3))
sketch12.addConstraint(Sketcher.Constraint("Horizontal", 4))
sketch12.addConstraint(Sketcher.Constraint("Vertical", 5))
sketch12.addConstraint(Sketcher.Constraint("Horizontal", 6))
sketch12.addConstraint(Sketcher.Constraint("Vertical", 7))
sketch12.addConstraint(Sketcher.Constraint("DistanceX", 1, 1, 1, 2, 22.0))
sketch12.addConstraint(Sketcher.Constraint("DistanceY", 0, 2, 0, 1, 38.0))
sketch12.addConstraint(Sketcher.Constraint("DistanceX", 4, 2, 4, 1, 4.2))
sketch12.addConstraint(Sketcher.Constraint("DistanceY", 5, 1, 5, 2, 8.2))
sketch12.addConstraint(Sketcher.Constraint("DistanceX", 0, 2, -1, 1, 34.0))
sketch12.addConstraint(Sketcher.Constraint("DistanceY", -1, 1, 0, 2, 2.0))
sketch12.addConstraint(Sketcher.Constraint("DistanceY", -1, 1, 4, 2, 22.0))
sketch12.addConstraint(Sketcher.Constraint("DistanceX", 6, 2, -1, 1, 20.0))
pad9 = body9.newObject("PartDesign::Pad", "Pad008")
pad9.Profile = sketch12
pad9.Length = 2
body10 = doc.addObject("PartDesign::Body", "Body009")

# Sketch on YZ plane
sketch13 = body10.newObject("Sketcher::SketchObject", "Sketch012")
sketch13.AttachmentSupport = (doc.getObject("YZ_Plane009"), [""])
sketch13.MapMode = "FlatFace"
sketch13.AttachmentOffset = App.Placement(V(0, 0, -27.5), App.Rotation())
sketch13.addGeometry(Part.LineSegment(V(-34, 40, 0), V(-34, 2, 0)), False)
sketch13.addGeometry(Part.LineSegment(V(-34, 2, 0), V(-12, 2, 0)), False)
sketch13.addGeometry(Part.LineSegment(V(-12, 2, 0), V(-12, 40, 0)), False)
sketch13.addGeometry(Part.LineSegment(V(-12, 40, 0), V(-34, 40, 0)), False)
sketch13.addGeometry(Part.LineSegment(V(-17, 8, 0), V(-29, 8, 0)), False)
sketch13.addGeometry(Part.LineSegment(V(-29, 8, 0), V(-29, 17, 0)), False)
sketch13.addGeometry(Part.LineSegment(V(-29, 17, 0), V(-17, 17, 0)), False)
sketch13.addGeometry(Part.LineSegment(V(-17, 17, 0), V(-17, 8, 0)), False)
sketch13.addConstraint(Sketcher.Constraint("Coincident", 0, 2, 1, 1))
sketch13.addConstraint(Sketcher.Constraint("Coincident", 1, 2, 2, 1))
sketch13.addConstraint(Sketcher.Constraint("Coincident", 2, 2, 3, 1))
sketch13.addConstraint(Sketcher.Constraint("Coincident", 3, 2, 0, 1))
sketch13.addConstraint(Sketcher.Constraint("Coincident", 4, 2, 5, 1))
sketch13.addConstraint(Sketcher.Constraint("Coincident", 5, 2, 6, 1))
sketch13.addConstraint(Sketcher.Constraint("Coincident", 6, 2, 7, 1))
sketch13.addConstraint(Sketcher.Constraint("Coincident", 7, 2, 4, 1))
sketch13.addConstraint(Sketcher.Constraint("Vertical", 0))
sketch13.addConstraint(Sketcher.Constraint("Horizontal", 1))
sketch13.addConstraint(Sketcher.Constraint("Vertical", 2))
sketch13.addConstraint(Sketcher.Constraint("Horizontal", 3))
sketch13.addConstraint(Sketcher.Constraint("Horizontal", 4))
sketch13.addConstraint(Sketcher.Constraint("Vertical", 5))
sketch13.addConstraint(Sketcher.Constraint("Horizontal", 6))
sketch13.addConstraint(Sketcher.Constraint("Vertical", 7))
sketch13.addConstraint(Sketcher.Constraint("DistanceX", 1, 1, 1, 2, 22.0))
sketch13.addConstraint(Sketcher.Constraint("DistanceX", 4, 2, 4, 1, 12.0))
sketch13.addConstraint(Sketcher.Constraint("DistanceY", 0, 2, 0, 1, 38.0))
sketch13.addConstraint(Sketcher.Constraint("DistanceY", 5, 1, 5, 2, 9.6))
sketch13.addConstraint(Sketcher.Constraint("DistanceX", 0, 2, -1, 1, 34.0))
sketch13.addConstraint(Sketcher.Constraint("DistanceY", -1, 1, 0, 2, 2.0))
sketch13.addConstraint(Sketcher.Constraint("DistanceX", 4, 2, -1, 1, 29.0))
sketch13.addConstraint(Sketcher.Constraint("DistanceY", -1, 1, 4, 2, 7.5))
pad10 = body10.newObject("PartDesign::Pad", "Pad009")
pad10.Profile = sketch13
pad10.Length = 2

doc.recompute()
